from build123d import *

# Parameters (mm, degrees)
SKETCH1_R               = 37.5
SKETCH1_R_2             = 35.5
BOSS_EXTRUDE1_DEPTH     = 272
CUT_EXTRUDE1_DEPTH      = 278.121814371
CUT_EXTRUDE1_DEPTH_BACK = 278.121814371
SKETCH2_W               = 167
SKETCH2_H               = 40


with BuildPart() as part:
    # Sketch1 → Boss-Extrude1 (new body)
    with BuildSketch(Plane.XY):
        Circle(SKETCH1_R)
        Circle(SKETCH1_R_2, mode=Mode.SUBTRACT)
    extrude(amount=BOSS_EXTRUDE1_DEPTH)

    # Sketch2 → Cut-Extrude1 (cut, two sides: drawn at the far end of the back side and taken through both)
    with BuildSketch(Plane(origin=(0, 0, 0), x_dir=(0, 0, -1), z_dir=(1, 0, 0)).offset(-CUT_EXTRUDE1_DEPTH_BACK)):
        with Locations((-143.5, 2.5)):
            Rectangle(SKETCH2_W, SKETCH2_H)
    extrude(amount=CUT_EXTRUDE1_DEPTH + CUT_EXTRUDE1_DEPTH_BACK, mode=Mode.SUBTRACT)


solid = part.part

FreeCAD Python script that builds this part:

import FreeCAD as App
import Part
import Sketcher

doc = App.newDocument("Part")
body = doc.addObject("PartDesign::Body", "Body")

sketch1 = body.newObject("Sketcher::SketchObject", "Sketch")
sketch1.AttachmentSupport = (doc.getObject("XY_Plane"), [""])
sketch1.MapMode = "FlatFace"
sketch1.addGeometry(Part.Circle(App.Vector(0, 0, 0), App.Vector(0, 0, 1), 38), False)
sketch1.addGeometry(Part.Circle(App.Vector(0, 0, 0), App.Vector(0, 0, 1), 36), False)
sketch1.addConstraint(Sketcher.Constraint("Coincident", 0, 3, -1, 1))
sketch1.addConstraint(Sketcher.Constraint("Coincident", 1, 3, -1, 1))
sketch1.addConstraint(Sketcher.Constraint("Diameter", 0, 75.0))
sketch1.addConstraint(Sketcher.Constraint("Diameter", 1, 71.0))
pad1 = body.newObject("PartDesign::Pad", "Pad")
pad1.Profile = sketch1
pad1.Length = 272

sketch2 = body.newObject("Sketcher::SketchObject", "Sketch001")
sketch2.AttachmentSupport = (doc.getObject("YZ_Plane"), [""])
sketch2.MapMode = "FlatFace"
sketch2.addGeometry(Part.LineSegment(App.Vector(22, 227, 0), App.Vector(-18, 227, 0)), False)
sketch2.addGeometry(Part.LineSegment(App.Vector(-18, 227, 0), App.Vector(-18, 60, 0)), False)
sketch2.addGeometry(Part.LineSegment(App.Vector(-18, 60, 0), App.Vector(22, 60, 0)), False)
sketch2.addGeometry(Part.LineSegment(App.Vector(22, 60, 0), App.Vector(22, 227, 0)), False)
sketch2.addConstraint(Sketcher.Constraint("Coincident", 0, 2, 1, 1))
sketch2.addConstraint(Sketcher.Constraint("Coincident", 1, 2, 2, 1))
sketch2.addConstraint(Sketcher.Constraint("Coincident", 2, 2, 3, 1))
sketch2.addConstraint(Sketcher.Constraint("Coincident", 3, 2, 0, 1))
sketch2.addConstraint(Sketcher.Constraint("Horizontal", 0))
sketch2.addConstraint(Sketcher.Constraint("Vertical", 1))
sketch2.addConstraint(Sketcher.Constraint("Horizontal", 2))
sketch2.addConstraint(Sketcher.Constraint("Vertical", 3))
sketch2.addConstraint(Sketcher.Constraint("DistanceX", 0, 2, 0, 1, 40.0))
sketch2.addConstraint(Sketcher.Constraint("DistanceY", 1, 2, 1, 1, 167.0))
sketch2.addConstraint(Sketcher.Constraint("DistanceY", -1, 1, 0, 2, 227.0))
sketch2.addConstraint(Sketcher.Constraint("DistanceX", 0, 2, -1, 1, 17.5))
pocket1 = body.newObject("PartDesign::Pocket", "Pocket")
pocket1.Profile = sketch2
pocket1.Type = "ThroughAll"
pocket1.Midplane = True

doc.recompute()
